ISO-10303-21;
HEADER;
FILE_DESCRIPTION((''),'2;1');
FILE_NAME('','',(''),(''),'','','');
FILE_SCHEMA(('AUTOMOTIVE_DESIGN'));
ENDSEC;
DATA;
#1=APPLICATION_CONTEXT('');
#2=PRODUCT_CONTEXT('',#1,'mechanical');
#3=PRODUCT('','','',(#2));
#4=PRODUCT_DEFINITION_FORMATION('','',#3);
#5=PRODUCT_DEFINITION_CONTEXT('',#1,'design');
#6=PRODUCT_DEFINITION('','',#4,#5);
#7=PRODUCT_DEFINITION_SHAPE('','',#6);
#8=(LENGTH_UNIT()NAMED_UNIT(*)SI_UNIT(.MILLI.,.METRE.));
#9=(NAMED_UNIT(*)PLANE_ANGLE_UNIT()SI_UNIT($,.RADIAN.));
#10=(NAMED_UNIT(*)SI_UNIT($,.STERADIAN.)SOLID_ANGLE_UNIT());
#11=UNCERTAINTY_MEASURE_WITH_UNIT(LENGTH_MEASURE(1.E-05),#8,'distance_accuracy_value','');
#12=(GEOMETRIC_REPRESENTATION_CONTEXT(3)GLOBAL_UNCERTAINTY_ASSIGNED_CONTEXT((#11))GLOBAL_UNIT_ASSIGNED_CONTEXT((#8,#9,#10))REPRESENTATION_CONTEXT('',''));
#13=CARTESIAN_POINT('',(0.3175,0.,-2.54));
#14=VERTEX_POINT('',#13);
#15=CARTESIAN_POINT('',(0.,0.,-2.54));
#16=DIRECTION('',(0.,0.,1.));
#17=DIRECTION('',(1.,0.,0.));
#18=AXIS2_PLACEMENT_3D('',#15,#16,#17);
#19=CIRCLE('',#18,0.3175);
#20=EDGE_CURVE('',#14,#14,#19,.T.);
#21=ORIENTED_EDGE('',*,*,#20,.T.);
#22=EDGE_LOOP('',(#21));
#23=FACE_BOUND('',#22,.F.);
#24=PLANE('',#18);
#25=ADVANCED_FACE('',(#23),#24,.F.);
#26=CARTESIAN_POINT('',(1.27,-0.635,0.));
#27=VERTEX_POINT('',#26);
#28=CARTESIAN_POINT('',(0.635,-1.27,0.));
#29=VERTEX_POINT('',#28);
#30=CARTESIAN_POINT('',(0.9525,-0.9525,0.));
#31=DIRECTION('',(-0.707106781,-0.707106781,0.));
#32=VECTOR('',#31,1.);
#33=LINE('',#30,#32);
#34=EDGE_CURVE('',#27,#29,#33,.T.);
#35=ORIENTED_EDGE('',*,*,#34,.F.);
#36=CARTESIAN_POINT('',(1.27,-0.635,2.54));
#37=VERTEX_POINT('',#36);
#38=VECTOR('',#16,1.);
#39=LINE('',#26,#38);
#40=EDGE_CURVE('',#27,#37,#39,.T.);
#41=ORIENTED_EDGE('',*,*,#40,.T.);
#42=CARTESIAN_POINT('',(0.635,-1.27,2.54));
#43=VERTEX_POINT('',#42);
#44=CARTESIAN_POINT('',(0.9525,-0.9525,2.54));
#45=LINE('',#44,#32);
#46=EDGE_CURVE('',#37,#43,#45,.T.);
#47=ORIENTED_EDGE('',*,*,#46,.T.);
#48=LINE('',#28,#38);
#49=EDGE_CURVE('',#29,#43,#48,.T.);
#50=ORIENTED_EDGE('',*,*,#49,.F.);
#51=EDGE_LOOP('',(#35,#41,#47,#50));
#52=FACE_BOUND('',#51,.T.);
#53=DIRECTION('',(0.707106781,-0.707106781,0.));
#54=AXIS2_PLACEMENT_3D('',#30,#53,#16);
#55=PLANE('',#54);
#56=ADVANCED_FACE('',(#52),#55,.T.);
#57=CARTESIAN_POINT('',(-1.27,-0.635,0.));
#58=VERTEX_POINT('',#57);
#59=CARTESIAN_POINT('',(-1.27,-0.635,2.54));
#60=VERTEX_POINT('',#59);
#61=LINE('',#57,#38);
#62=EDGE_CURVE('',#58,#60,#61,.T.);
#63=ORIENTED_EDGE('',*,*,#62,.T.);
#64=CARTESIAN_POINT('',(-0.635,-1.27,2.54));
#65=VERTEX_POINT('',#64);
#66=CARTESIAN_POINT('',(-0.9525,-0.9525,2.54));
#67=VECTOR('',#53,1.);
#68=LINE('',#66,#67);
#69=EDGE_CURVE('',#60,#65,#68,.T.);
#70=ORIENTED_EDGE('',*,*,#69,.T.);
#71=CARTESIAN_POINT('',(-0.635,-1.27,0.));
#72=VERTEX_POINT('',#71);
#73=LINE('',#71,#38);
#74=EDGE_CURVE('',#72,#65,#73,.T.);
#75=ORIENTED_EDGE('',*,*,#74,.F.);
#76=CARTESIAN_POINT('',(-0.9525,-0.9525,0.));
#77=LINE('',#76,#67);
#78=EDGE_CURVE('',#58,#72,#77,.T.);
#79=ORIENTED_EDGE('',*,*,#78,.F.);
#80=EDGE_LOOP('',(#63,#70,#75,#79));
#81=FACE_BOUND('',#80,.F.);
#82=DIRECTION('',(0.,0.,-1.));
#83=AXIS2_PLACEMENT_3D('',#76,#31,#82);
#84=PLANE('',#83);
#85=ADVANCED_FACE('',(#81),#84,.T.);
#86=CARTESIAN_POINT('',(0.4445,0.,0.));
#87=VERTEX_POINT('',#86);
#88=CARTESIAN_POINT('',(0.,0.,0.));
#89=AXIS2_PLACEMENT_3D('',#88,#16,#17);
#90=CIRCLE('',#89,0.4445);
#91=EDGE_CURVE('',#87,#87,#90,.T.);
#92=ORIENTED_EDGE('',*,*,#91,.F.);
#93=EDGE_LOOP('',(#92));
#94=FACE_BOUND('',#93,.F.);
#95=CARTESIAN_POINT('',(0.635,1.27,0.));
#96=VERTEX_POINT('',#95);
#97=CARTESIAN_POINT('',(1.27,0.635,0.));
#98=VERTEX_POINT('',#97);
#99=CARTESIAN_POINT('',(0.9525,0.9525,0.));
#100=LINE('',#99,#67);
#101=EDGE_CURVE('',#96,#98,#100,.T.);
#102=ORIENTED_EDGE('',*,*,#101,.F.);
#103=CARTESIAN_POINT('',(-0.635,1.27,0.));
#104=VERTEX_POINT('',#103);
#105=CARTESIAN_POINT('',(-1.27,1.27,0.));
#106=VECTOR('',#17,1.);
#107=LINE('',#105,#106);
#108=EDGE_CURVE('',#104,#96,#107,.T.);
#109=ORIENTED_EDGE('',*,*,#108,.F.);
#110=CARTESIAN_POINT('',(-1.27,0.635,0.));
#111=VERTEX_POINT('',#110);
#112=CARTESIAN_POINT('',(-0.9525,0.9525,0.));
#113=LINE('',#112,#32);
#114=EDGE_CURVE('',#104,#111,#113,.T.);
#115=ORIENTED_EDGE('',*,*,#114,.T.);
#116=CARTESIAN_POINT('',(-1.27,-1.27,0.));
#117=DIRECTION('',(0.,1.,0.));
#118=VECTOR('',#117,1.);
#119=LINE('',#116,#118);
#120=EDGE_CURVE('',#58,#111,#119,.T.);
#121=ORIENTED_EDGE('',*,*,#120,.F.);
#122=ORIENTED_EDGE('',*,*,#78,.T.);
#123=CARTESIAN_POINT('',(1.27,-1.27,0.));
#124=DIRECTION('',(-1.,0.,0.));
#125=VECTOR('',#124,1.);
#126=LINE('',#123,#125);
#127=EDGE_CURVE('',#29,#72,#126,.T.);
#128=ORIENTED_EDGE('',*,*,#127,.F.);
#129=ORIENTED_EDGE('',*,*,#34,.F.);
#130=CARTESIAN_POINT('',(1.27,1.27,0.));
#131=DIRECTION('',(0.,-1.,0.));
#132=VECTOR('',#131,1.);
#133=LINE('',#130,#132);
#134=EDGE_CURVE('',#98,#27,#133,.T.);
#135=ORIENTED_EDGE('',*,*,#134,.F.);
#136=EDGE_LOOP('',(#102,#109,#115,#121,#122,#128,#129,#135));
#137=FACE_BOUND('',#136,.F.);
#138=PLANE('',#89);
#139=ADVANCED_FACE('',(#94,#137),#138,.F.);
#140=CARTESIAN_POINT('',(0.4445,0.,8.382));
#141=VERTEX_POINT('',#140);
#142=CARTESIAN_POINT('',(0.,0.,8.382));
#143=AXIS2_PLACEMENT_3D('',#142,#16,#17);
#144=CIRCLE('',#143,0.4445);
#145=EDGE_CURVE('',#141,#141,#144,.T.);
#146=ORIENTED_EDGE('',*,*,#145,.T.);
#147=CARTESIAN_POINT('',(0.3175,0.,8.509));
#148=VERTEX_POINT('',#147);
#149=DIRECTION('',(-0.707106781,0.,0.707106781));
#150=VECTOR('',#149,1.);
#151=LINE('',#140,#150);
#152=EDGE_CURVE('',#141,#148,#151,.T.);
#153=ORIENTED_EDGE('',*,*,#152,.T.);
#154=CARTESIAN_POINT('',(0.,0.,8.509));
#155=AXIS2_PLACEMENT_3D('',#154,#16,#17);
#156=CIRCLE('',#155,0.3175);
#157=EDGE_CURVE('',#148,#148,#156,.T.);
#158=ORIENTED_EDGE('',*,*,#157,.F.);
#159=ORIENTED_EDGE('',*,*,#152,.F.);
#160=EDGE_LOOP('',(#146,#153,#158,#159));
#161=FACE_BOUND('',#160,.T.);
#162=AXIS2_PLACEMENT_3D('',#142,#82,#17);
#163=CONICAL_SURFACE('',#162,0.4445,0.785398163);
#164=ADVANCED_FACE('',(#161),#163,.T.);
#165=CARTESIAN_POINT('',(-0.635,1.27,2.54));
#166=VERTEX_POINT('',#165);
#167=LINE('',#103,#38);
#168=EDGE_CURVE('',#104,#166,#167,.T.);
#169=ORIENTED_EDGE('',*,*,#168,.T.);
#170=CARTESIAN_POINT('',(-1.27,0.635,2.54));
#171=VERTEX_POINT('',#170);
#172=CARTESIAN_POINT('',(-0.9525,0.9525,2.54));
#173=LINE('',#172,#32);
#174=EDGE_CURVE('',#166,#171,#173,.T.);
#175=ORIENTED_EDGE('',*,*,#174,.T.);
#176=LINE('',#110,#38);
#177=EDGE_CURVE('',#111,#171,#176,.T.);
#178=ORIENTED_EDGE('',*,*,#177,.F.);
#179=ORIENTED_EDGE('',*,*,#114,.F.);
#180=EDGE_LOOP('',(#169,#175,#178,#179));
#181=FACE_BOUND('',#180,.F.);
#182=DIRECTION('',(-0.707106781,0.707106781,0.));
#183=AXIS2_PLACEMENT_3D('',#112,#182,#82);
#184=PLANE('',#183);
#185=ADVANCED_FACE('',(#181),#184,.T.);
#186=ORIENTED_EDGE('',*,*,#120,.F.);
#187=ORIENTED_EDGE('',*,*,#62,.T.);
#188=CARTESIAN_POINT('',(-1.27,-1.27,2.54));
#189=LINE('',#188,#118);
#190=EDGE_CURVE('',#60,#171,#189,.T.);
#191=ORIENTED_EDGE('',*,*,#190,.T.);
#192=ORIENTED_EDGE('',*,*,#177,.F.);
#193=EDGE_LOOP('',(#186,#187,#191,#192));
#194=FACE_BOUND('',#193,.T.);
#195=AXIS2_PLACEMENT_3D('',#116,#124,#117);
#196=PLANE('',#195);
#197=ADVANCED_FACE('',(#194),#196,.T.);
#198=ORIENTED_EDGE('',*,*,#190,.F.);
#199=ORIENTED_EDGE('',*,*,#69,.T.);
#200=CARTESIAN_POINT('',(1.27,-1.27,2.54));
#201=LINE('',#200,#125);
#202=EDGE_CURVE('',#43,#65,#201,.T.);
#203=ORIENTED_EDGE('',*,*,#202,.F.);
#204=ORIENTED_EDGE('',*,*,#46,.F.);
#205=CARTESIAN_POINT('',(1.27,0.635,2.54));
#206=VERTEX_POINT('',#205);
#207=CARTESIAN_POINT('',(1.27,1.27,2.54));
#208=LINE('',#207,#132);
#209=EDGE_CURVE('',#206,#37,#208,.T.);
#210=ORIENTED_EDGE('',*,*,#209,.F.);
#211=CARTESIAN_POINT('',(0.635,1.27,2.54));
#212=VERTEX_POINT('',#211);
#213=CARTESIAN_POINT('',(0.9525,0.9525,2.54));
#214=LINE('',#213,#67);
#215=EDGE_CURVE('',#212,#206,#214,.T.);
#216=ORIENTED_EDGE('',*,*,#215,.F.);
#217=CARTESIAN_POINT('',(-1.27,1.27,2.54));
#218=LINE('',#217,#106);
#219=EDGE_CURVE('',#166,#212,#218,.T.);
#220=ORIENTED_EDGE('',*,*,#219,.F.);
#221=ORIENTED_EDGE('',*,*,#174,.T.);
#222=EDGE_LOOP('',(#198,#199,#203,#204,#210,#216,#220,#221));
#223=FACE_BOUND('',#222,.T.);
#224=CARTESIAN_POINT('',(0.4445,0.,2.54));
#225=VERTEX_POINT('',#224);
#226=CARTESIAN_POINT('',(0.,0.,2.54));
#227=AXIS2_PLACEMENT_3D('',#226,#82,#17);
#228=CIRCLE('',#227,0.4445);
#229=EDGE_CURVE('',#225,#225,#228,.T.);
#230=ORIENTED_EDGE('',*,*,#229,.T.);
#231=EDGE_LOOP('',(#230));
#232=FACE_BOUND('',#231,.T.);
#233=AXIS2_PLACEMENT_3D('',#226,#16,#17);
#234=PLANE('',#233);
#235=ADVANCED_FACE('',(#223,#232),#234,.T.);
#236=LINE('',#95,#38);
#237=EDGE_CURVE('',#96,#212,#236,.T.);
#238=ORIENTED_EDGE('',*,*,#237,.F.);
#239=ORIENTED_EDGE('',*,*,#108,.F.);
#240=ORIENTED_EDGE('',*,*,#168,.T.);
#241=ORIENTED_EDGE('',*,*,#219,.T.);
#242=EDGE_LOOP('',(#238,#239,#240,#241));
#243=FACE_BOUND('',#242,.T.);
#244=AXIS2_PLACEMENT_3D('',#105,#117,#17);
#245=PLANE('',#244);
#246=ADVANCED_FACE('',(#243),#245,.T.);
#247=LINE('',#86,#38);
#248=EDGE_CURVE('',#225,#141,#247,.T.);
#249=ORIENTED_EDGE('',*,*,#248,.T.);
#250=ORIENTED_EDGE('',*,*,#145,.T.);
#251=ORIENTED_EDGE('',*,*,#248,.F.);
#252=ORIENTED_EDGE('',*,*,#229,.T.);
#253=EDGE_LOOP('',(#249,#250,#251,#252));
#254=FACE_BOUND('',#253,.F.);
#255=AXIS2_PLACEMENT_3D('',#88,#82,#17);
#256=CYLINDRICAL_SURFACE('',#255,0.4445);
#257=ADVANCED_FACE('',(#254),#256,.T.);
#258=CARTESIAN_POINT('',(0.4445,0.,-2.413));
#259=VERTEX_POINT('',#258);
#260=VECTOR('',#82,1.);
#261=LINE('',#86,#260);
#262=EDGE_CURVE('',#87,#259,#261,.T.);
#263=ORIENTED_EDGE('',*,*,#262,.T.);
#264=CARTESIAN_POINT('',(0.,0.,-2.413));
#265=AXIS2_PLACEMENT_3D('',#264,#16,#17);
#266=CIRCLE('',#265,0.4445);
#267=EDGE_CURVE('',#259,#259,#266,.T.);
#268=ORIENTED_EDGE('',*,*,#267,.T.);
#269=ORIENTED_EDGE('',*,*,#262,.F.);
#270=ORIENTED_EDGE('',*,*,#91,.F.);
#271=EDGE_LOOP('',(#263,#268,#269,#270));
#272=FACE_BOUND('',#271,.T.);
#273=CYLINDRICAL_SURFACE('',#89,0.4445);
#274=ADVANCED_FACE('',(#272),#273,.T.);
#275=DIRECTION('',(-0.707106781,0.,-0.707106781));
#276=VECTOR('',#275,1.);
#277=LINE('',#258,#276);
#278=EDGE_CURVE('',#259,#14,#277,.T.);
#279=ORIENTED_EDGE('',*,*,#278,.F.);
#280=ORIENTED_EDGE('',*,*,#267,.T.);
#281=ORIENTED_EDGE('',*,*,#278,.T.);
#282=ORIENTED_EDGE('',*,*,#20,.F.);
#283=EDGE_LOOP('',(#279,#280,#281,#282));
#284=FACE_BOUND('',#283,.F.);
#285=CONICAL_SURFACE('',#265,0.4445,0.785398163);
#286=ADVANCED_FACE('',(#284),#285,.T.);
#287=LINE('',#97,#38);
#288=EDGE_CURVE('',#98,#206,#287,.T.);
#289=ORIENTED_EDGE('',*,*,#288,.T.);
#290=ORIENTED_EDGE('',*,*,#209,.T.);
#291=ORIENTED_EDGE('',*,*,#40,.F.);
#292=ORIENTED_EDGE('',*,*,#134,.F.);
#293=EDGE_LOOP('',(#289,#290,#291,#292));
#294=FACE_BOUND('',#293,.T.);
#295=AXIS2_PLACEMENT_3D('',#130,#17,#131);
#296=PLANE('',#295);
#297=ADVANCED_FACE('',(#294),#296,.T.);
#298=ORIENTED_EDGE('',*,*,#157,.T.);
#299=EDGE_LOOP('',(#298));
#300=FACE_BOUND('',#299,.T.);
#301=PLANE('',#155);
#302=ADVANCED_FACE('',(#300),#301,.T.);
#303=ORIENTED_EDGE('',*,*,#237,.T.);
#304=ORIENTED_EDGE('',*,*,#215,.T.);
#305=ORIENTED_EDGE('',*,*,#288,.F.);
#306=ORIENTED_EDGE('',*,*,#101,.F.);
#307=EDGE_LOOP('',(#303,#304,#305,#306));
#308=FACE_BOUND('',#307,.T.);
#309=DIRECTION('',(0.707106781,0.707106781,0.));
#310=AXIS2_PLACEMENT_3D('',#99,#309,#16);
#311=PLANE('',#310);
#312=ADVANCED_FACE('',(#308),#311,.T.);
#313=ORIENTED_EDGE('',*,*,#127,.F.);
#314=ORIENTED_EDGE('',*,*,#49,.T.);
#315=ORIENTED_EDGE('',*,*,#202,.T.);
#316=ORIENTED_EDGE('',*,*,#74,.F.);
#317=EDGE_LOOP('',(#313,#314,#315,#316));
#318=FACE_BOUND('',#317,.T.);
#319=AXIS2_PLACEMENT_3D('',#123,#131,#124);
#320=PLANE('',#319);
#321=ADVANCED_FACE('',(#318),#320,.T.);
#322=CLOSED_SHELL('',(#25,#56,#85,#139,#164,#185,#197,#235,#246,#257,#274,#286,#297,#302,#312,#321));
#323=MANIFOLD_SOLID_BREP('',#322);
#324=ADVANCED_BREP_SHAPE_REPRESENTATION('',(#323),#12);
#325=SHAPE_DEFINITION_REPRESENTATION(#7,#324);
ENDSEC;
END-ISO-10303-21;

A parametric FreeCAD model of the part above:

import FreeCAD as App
import Part
import Sketcher

V = App.Vector
Q = App.Units.Quantity


def edges_at(feature, points):
    """Names of the edges that pass closest to the given points."""
    edges = feature.Shape.Edges
    near = lambda p: min(range(len(edges)), key=lambda i: edges[i].distToShape(Part.Vertex(*p))[0])
    return sorted({f"Edge{near(p) + 1}" for p in points})


def add_polygon(sketch, points):
    """Adds a closed chain of lines whose ends are joined by coincident constraints."""
    first, n = sketch.GeometryCount, len(points)
    for a, b in zip(points, points[1:] + points[:1]):
        sketch.addGeometry(Part.LineSegment(App.Vector(*a, 0), App.Vector(*b, 0)), False)
    for i in range(n):
        sketch.addConstraint(Sketcher.Constraint("Coincident", first + i, 2, first + (i + 1) % n, 1))

doc = App.newDocument("Part")
params = doc.addObject("Spreadsheet::Sheet", "Params")
for row, (alias, value) in enumerate([
    ("sketch1_diameter", "0.035 in"),
    ("pad1_length", "0.335 in"),
    ("pad1_length2", "0.1 in"),
    ("chamfer_size", "0.005 in"),
    ("sketch2_width", "0.1 in"),
    ("pad2_length", "0.1 in"),
    ("chamfer2_size", "0.025 in"),
], start=1):
    params.set(f"A{row}", alias)
    params.set(f"B{row}", "=" + value)
    params.setAlias(f"B{row}", alias)

body = doc.addObject("PartDesign::Body", "Body")

# Sketch on XY plane
sketch1 = body.newObject("Sketcher::SketchObject", "Sketch")
sketch1.AttachmentSupport = (doc.getObject("XY_Plane"), [""])
sketch1.MapMode = "FlatFace"
sketch1.addGeometry(Part.Circle(V(0, 0, 0), V(0, 0, 1), 0.44), False)
sketch1.addConstraint([
    Sketcher.Constraint("Coincident", 0, 3, -1, 1),
    Sketcher.Constraint("Diameter", 0, Q("0.035 in")),
])
sketch1.setExpression("Constraints[1]", "Params.sketch1_diameter")
pad1 = body.newObject("PartDesign::Pad", "Pad")
pad1.Profile = sketch1
pad1.Type = "TwoLengths"
pad1.setExpression("Length", "Params.pad1_length")
pad1.setExpression("Length2", "Params.pad1_length2")
doc.recompute()

chamfer = body.newObject("PartDesign::Chamfer", "Chamfer")
chamfer.Base = (pad1, edges_at(pad1, [(-0.445, 0, 8.509), (-0.445, 0, -2.54)]))
chamfer.setExpression("Size", "Params.chamfer_size")

# Sketch on XY plane
sketch2 = body.newObject("Sketcher::SketchObject", "Sketch001")
sketch2.AttachmentSupport = (doc.getObject("XY_Plane"), [""])
sketch2.MapMode = "FlatFace"
add_polygon(sketch2, [(1.3, 1.3), (-1.3, 1.3), (-1.3, -1.3), (1.3, -1.3)])  # lines 0-3
sketch2.addConstraint([
    Sketcher.Constraint("Horizontal", 0),
    Sketcher.Constraint("Vertical", 1),
    Sketcher.Constraint("Horizontal", 2),
    Sketcher.Constraint("Vertical", 3),
    Sketcher.Constraint("Symmetric", 0, 2, 2, 2, -1, 1),
    Sketcher.Constraint("Equal", 2, 1),
    Sketcher.Constraint("DistanceX", 0, 2, 0, 1, Q("0.1 in")),
])
sketch2.setExpression("Constraints[10]", "Params.sketch2_width")
pad2 = body.newObject("PartDesign::Pad", "Pad001")
pad2.Profile = sketch2
pad2.setExpression("Length", "Params.pad2_length")
doc.recompute()

chamfer2 = body.newObject("PartDesign::Chamfer", "Chamfer001")
chamfer2.Base = (pad2, edges_at(pad2, [
    (1.27, 1.27, 1.27),
    (-1.27, 1.27, 1.27),
    (1.27, -1.27, 1.27),
    (-1.27, -1.27, 1.27),
]))
chamfer2.setExpression("Size", "Params.chamfer2_size")

doc.recompute()
